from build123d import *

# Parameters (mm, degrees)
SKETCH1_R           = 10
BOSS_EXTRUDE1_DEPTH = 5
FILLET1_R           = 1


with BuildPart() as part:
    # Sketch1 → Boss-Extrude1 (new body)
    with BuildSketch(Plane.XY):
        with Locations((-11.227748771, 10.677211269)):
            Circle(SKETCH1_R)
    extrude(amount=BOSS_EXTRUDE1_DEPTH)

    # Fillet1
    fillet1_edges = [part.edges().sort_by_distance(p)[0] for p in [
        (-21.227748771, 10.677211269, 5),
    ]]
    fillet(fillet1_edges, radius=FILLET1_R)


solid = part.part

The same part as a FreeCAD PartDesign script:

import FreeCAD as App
import Part
import Sketcher
from FreeCAD import Vector


def edges_at(feature, points):
    """Names of the edges that pass closest to the given points."""
    edges = feature.Shape.Edges
    near = lambda p: min(range(len(edges)), key=lambda i: edges[i].distToShape(Part.Vertex(*p))[0])
    return sorted({f"Edge{near(p) + 1}" for p in points})

doc = App.newDocument("Part")
body = doc.addObject("PartDesign::Body", "Body")

# Sketch on XY plane
sketch1 = doc.addObject("Sketcher::SketchObject", "Sketch")
body.addObject(sketch1)
sketch1.AttachmentSupport = (doc.XY_Plane, [""])
sketch1.MapMode = "FlatFace"
sketch1.addGeometry(Part.Circle(Vector(-11.227749, 10.677211, 0), Vector(0, 0, 1), 10), False)
sketch1.addConstraint([
    Sketcher.Constraint("Diameter", 0, 20.0),
    Sketcher.Constraint("DistanceX", 0, 3, -1, 1, 11.227749),
    Sketcher.Constraint("DistanceY", -1, 1, 0, 3, 10.677211),
])
pad1 = doc.addObject("PartDesign::Pad", "Pad")
body.addObject(pad1)
pad1.Profile = sketch1
pad1.Length = 5
doc.recompute()

fillet = doc.addObject("PartDesign::Fillet", "Fillet")
body.addObject(fillet)
fillet.Base = (pad1, edges_at(pad1, [(-21.228, 10.677, 5)]))
fillet.Radius = 1

doc.recompute()
